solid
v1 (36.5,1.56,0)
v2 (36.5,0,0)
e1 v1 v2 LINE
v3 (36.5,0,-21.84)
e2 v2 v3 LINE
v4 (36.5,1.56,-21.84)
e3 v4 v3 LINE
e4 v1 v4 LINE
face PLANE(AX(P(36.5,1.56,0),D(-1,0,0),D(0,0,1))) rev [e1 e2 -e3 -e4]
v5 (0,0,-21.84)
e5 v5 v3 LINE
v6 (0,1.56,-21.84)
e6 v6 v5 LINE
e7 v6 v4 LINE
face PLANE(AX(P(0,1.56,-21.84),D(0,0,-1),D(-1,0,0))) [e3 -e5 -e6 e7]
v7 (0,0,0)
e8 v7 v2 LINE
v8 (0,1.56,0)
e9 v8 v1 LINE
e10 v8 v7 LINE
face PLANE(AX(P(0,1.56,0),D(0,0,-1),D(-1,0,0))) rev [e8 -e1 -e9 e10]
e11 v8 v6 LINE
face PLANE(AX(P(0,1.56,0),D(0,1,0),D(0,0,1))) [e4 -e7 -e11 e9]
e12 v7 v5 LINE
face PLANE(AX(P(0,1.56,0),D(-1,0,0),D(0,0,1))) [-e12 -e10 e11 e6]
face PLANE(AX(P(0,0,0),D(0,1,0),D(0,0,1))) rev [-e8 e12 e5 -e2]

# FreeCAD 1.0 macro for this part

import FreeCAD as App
import Part
import Sketcher

V = App.Vector

doc = App.newDocument("Part")
body = doc.addObject("PartDesign::Body", "Body")

# Sketch on XZ plane
sketch1 = doc.addObject("Sketcher::SketchObject", "Sketch")
body.addObject(sketch1)
sketch1.AttachmentSupport = (doc.XZ_Plane, [""])
sketch1.MapMode = "FlatFace"
sketch1.addGeometry([
    Part.LineSegment(V(0, -21.84, 0), V(0, 0, 0)),
    Part.LineSegment(V(0, 0, 0), V(36.5, 0, 0)),
    Part.LineSegment(V(36.5, 0, 0), V(36.5, -21.84, 0)),
    Part.LineSegment(V(36.5, -21.84, 0), V(0, -21.84, 0)),
], False)
sketch1.addConstraint([
    Sketcher.Constraint("Coincident", 0, 2, 1, 1),
    Sketcher.Constraint("Coincident", 1, 2, 2, 1),
    Sketcher.Constraint("Coincident", 2, 2, 3, 1),
    Sketcher.Constraint("Coincident", 3, 2, 0, 1),
    Sketcher.Constraint("Vertical", 0),
    Sketcher.Constraint("Horizontal", 1),
    Sketcher.Constraint("Vertical", 2),
    Sketcher.Constraint("Horizontal", 3),
    Sketcher.Constraint("Coincident", 0, 2, -1, 1),
    Sketcher.Constraint("DistanceX", 1, 1, 1, 2, 36.5),
    Sketcher.Constraint("DistanceY", 0, 1, 0, 2, 21.84),
])
pad1 = doc.addObject("PartDesign::Pad", "Pad")
body.addObject(pad1)
pad1.Profile = sketch1
pad1.Length = 1.56
pad1.Reversed = True

doc.recompute()
